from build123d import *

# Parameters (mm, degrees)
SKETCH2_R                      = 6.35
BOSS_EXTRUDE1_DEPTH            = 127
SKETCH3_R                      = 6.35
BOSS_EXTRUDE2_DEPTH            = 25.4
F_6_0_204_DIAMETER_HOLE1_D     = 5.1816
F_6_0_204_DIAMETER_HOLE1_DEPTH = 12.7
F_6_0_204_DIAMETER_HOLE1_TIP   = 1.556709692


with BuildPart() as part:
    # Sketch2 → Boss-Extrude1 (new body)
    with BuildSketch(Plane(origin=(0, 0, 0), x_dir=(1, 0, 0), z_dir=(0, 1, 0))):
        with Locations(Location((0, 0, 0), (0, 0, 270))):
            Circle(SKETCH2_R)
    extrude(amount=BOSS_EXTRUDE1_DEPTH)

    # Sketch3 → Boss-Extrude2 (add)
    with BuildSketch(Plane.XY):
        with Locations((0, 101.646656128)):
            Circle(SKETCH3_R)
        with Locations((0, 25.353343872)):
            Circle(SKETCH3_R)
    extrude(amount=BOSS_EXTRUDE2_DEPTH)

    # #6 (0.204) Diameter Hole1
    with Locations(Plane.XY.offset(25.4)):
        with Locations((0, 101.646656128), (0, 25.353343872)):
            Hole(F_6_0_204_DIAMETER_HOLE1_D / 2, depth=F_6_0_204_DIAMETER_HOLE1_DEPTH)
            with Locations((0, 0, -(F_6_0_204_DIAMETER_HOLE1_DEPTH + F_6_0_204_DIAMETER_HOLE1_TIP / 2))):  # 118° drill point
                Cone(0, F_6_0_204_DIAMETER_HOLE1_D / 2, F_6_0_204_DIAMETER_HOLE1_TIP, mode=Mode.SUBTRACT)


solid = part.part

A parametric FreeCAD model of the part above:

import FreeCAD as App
import Part
import Sketcher

V = App.Vector
Q = App.Units.Quantity

doc = App.newDocument("Part")
params = doc.addObject("Spreadsheet::Sheet", "Params")
for row, (alias, value) in enumerate([
    ("sketch1_diameter", "0.5 in"),
    ("pad1_length", "5 in"),
    ("sketch2_diameter", "0.5 in"),
    ("pad2_length", "1 in"),
    ("sketch3_diameter", "0.204 in"),
    ("hole_diameter", "0.204 in"),
    ("hole_depth", "0.5 in"),
], start=1):
    params.set(f"A{row}", alias)
    params.set(f"B{row}", "=" + value)
    params.setAlias(f"B{row}", alias)

body = doc.addObject("PartDesign::Body", "Body")

sketch1 = doc.addObject("Sketcher::SketchObject", "Sketch")
body.addObject(sketch1)
sketch1.AttachmentSupport = (doc.XZ_Plane, [""])
sketch1.MapMode = "FlatFace"
sketch1.addGeometry(Part.Circle(V(0, 0, 0), V(0, 0, 1), 6.35), False)
sketch1.addConstraint([
    Sketcher.Constraint("Coincident", 0, 3, -1, 1),
    Sketcher.Constraint("Diameter", 0, Q("0.5 in")),
])
sketch1.setExpression("Constraints[1]", "Params.sketch1_diameter")
pad1 = doc.addObject("PartDesign::Pad", "Pad")
body.addObject(pad1)
pad1.Profile = sketch1
pad1.setExpression("Length", "Params.pad1_length")
pad1.Reversed = True

sketch2 = doc.addObject("Sketcher::SketchObject", "Sketch001")
body.addObject(sketch2)
sketch2.AttachmentSupport = (doc.XY_Plane, [""])
sketch2.MapMode = "FlatFace"
sketch2.addGeometry([
    Part.Circle(V(0, 101.646656, 0), V(0, 0, 1), 6.35),
    Part.Circle(V(0, 25.353344, 0), V(0, 0, 1), 6.35),
], False)
sketch2.addConstraint([
    Sketcher.Constraint("Equal", 0, 1),
    Sketcher.Constraint("PointOnObject", 0, 3, -2),
    Sketcher.Constraint("PointOnObject", 1, 3, -2),
    Sketcher.Constraint("Diameter", 0, Q("0.5 in")),
    Sketcher.Constraint("DistanceY", -1, 1, 0, 3, Q("101.646656 mm")),
    Sketcher.Constraint("DistanceY", -1, 1, 1, 3, Q("25.353344 mm")),
])
sketch2.setExpression("Constraints[3]", "Params.sketch2_diameter")
pad2 = doc.addObject("PartDesign::Pad", "Pad001")
body.addObject(pad2)
pad2.Profile = sketch2
pad2.setExpression("Length", "Params.pad2_length")

sketch3 = doc.addObject("Sketcher::SketchObject", "Sketch002")
body.addObject(sketch3)
sketch3.AttachmentSupport = (doc.XY_Plane, [""])
sketch3.MapMode = "FlatFace"
sketch3.AttachmentOffset = App.Placement(V(0, 0, 1 * 25.4), App.Rotation())
sketch3.addGeometry([
    Part.Circle(V(0, 101.646656, 0), V(0, 0, 1), 2.5908),
    Part.Circle(V(0, 25.353344, 0), V(0, 0, 1), 2.5908),
], False)
sketch3.addConstraint([
    Sketcher.Constraint("Equal", 0, 1),
    Sketcher.Constraint("PointOnObject", 0, 3, -2),
    Sketcher.Constraint("PointOnObject", 1, 3, -2),
    Sketcher.Constraint("Diameter", 0, Q("0.204 in")),
    Sketcher.Constraint("DistanceY", -1, 1, 0, 3, Q("101.646656 mm")),
    Sketcher.Constraint("DistanceY", -1, 1, 1, 3, Q("25.353344 mm")),
])
sketch3.setExpression("Constraints[3]", "Params.sketch3_diameter")
doc.recompute()
hole = doc.addObject("PartDesign::Hole", "Hole")
body.addObject(hole)
hole.Profile = sketch3
hole.ThreadType = "None"
hole.setExpression("Diameter", "Params.hole_diameter")
hole.DepthType = "Dimension"
hole.setExpression("Depth", "Params.hole_depth")
hole.DrillPoint = "Angled"
hole.DrillPointAngle = 118

doc.recompute()
